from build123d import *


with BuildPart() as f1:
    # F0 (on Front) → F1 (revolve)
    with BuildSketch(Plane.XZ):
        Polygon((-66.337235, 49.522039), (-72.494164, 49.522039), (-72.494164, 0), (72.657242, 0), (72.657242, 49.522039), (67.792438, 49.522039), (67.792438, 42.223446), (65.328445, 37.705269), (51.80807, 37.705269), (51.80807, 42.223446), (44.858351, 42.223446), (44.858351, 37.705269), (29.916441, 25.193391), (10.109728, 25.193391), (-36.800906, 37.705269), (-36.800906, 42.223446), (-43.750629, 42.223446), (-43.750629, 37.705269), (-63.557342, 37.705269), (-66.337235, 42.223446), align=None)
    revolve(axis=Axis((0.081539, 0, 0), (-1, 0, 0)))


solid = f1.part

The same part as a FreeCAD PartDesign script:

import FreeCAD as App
import Part
import Sketcher
Q = App.Units.Quantity

doc = App.newDocument("Part")
body = doc.addObject("PartDesign::Body", "Body")

# Sketch on XZ plane
sketch1 = doc.addObject("Sketcher::SketchObject", "Sketch")
body.addObject(sketch1)
sketch1.AttachmentSupport = (doc.XZ_Plane, [""])
sketch1.MapMode = "FlatFace"
sketch1.addGeometry(Part.LineSegment(App.Vector(-66.3, 49.5, 0), App.Vector(-72.5, 49.5, 0)), False)
sketch1.addGeometry(Part.LineSegment(App.Vector(-72.5, 49.5, 0), App.Vector(-72.5, 0, 0)), False)
sketch1.addGeometry(Part.LineSegment(App.Vector(-72.5, 0, 0), App.Vector(72.7, 0, 0)), False)
sketch1.addGeometry(Part.LineSegment(App.Vector(72.7, 0, 0), App.Vector(72.7, 49.5, 0)), False)
sketch1.addGeometry(Part.LineSegment(App.Vector(72.7, 49.5, 0), App.Vector(67.8, 49.5, 0)), False)
sketch1.addGeometry(Part.LineSegment(App.Vector(67.8, 49.5, 0), App.Vector(67.8, 42.2, 0)), False)
sketch1.addGeometry(Part.LineSegment(App.Vector(67.8, 42.2, 0), App.Vector(65.3, 37.7, 0)), False)
sketch1.addGeometry(Part.LineSegment(App.Vector(65.3, 37.7, 0), App.Vector(51.8, 37.7, 0)), False)
sketch1.addGeometry(Part.LineSegment(App.Vector(51.8, 37.7, 0), App.Vector(51.8, 42.2, 0)), False)
sketch1.addGeometry(Part.LineSegment(App.Vector(51.8, 42.2, 0), App.Vector(44.9, 42.2, 0)), False)
sketch1.addGeometry(Part.LineSegment(App.Vector(44.9, 42.2, 0), App.Vector(44.9, 37.7, 0)), False)
sketch1.addGeometry(Part.LineSegment(App.Vector(44.9, 37.7, 0), App.Vector(29.9, 25.2, 0)), False)
sketch1.addGeometry(Part.LineSegment(App.Vector(29.9, 25.2, 0), App.Vector(10.1, 25.2, 0)), False)
sketch1.addGeometry(Part.LineSegment(App.Vector(10.1, 25.2, 0), App.Vector(-36.8, 37.7, 0)), False)
sketch1.addGeometry(Part.LineSegment(App.Vector(-36.8, 37.7, 0), App.Vector(-36.8, 42.2, 0)), False)
sketch1.addGeometry(Part.LineSegment(App.Vector(-36.8, 42.2, 0), App.Vector(-43.8, 42.2, 0)), False)
sketch1.addGeometry(Part.LineSegment(App.Vector(-43.8, 42.2, 0), App.Vector(-43.8, 37.7, 0)), False)
sketch1.addGeometry(Part.LineSegment(App.Vector(-43.8, 37.7, 0), App.Vector(-63.6, 37.7, 0)), False)
sketch1.addGeometry(Part.LineSegment(App.Vector(-63.6, 37.7, 0), App.Vector(-66.3, 42.2, 0)), False)
sketch1.addGeometry(Part.LineSegment(App.Vector(-66.3, 42.2, 0), App.Vector(-66.3, 49.5, 0)), False)
sketch1.addConstraint(Sketcher.Constraint("Coincident", 0, 2, 1, 1))
sketch1.addConstraint(Sketcher.Constraint("Coincident", 1, 2, 2, 1))
sketch1.addConstraint(Sketcher.Constraint("Coincident", 2, 2, 3, 1))
sketch1.addConstraint(Sketcher.Constraint("Coincident", 3, 2, 4, 1))
sketch1.addConstraint(Sketcher.Constraint("Coincident", 4, 2, 5, 1))
sketch1.addConstraint(Sketcher.Constraint("Coincident", 5, 2, 6, 1))
sketch1.addConstraint(Sketcher.Constraint("Coincident", 6, 2, 7, 1))
sketch1.addConstraint(Sketcher.Constraint("Coincident", 7, 2, 8, 1))
sketch1.addConstraint(Sketcher.Constraint("Coincident", 8, 2, 9, 1))
sketch1.addConstraint(Sketcher.Constraint("Coincident", 9, 2, 10, 1))
sketch1.addConstraint(Sketcher.Constraint("Coincident", 10, 2, 11, 1))
sketch1.addConstraint(Sketcher.Constraint("Coincident", 11, 2, 12, 1))
sketch1.addConstraint(Sketcher.Constraint("Coincident", 12, 2, 13, 1))
sketch1.addConstraint(Sketcher.Constraint("Coincident", 13, 2, 14, 1))
sketch1.addConstraint(Sketcher.Constraint("Coincident", 14, 2, 15, 1))
sketch1.addConstraint(Sketcher.Constraint("Coincident", 15, 2, 16, 1))
sketch1.addConstraint(Sketcher.Constraint("Coincident", 16, 2, 17, 1))
sketch1.addConstraint(Sketcher.Constraint("Coincident", 17, 2, 18, 1))
sketch1.addConstraint(Sketcher.Constraint("Coincident", 18, 2, 19, 1))
sketch1.addConstraint(Sketcher.Constraint("Coincident", 19, 2, 0, 1))
sketch1.addConstraint(Sketcher.Constraint("Horizontal", 0))
sketch1.addConstraint(Sketcher.Constraint("Vertical", 1))
sketch1.addConstraint(Sketcher.Constraint("Horizontal", 2))
sketch1.addConstraint(Sketcher.Constraint("Vertical", 3))
sketch1.addConstraint(Sketcher.Constraint("Horizontal", 4))
sketch1.addConstraint(Sketcher.Constraint("Vertical", 5))
sketch1.addConstraint(Sketcher.Constraint("Horizontal", 7))
sketch1.addConstraint(Sketcher.Constraint("Vertical", 8))
sketch1.addConstraint(Sketcher.Constraint("Horizontal", 9))
sketch1.addConstraint(Sketcher.Constraint("Vertical", 10))
sketch1.addConstraint(Sketcher.Constraint("Horizontal", 12))
sketch1.addConstraint(Sketcher.Constraint("Vertical", 14))
sketch1.addConstraint(Sketcher.Constraint("Horizontal", 15))
sketch1.addConstraint(Sketcher.Constraint("Vertical", 16))
sketch1.addConstraint(Sketcher.Constraint("Horizontal", 17))
sketch1.addConstraint(Sketcher.Constraint("Vertical", 19))
sketch1.addConstraint(Sketcher.Constraint("PointOnObject", 1, 2, -1))
sketch1.addConstraint(Sketcher.Constraint("Horizontal", 0, 2, 3, 2))
sketch1.addConstraint(Sketcher.Constraint("Horizontal", 5, 2, 8, 2))
sketch1.addConstraint(Sketcher.Constraint("Horizontal", 7, 2, 10, 2))
sketch1.addConstraint(Sketcher.Constraint("Horizontal", 10, 2, 13, 2))
sketch1.addConstraint(Sketcher.Constraint("Horizontal", 9, 2, 14, 2))
sketch1.addConstraint(Sketcher.Constraint("Horizontal", 13, 2, 16, 2))
sketch1.addConstraint(Sketcher.Constraint("Horizontal", 15, 2, 18, 2))
sketch1.addConstraint(Sketcher.Constraint("Equal", 12, 17))
sketch1.addConstraint(Sketcher.Constraint("DistanceX", 0, 2, 0, 1, Q("6.156929 mm")))
sketch1.addConstraint(Sketcher.Constraint("DistanceX", 9, 2, 9, 1, Q("6.949719 mm")))
sketch1.addConstraint(Sketcher.Constraint("DistanceY", 1, 2, 1, 1, Q("49.522039 mm")))
sketch1.addConstraint(Sketcher.Constraint("DistanceX", 2, 1, 2, 2, Q("145.151406 mm")))
sketch1.addConstraint(Sketcher.Constraint("DistanceX", 4, 2, 4, 1, Q("4.864804 mm")))
sketch1.addConstraint(Sketcher.Constraint("DistanceX", 7, 2, 7, 1, Q("13.520375 mm")))
sketch1.addConstraint(Sketcher.Constraint("DistanceX", 12, 2, 12, 1, Q("19.806713 mm")))
sketch1.addConstraint(Sketcher.Constraint("DistanceX", 15, 2, 15, 1, Q("6.949723 mm")))
sketch1.addConstraint(Sketcher.Constraint("DistanceY", 5, 2, 5, 1, Q("7.298593 mm")))
sketch1.addConstraint(Sketcher.Constraint("DistanceY", 8, 1, 8, 2, Q("4.518177 mm")))
sketch1.addConstraint(Sketcher.Constraint("DistanceX", -1, 1, 2, 2, Q("72.657242 mm")))
sketch1.addConstraint(Sketcher.Constraint("DistanceX", -1, 1, 7, 2, Q("51.80807 mm")))
sketch1.addConstraint(Sketcher.Constraint("DistanceX", -1, 1, 11, 2, Q("29.916441 mm")))
sketch1.addConstraint(Sketcher.Constraint("DistanceY", -1, 1, 11, 2, Q("25.193391 mm")))
sketch1.addConstraint(Sketcher.Constraint("DistanceX", 15, 2, -1, 1, Q("43.750629 mm")))
revolution = doc.addObject("PartDesign::Revolution", "Revolution")
body.addObject(revolution)
revolution.Profile = sketch1
revolution.ReferenceAxis = (sketch1, ["H_Axis"])
revolution.Angle = 360

doc.recompute()
